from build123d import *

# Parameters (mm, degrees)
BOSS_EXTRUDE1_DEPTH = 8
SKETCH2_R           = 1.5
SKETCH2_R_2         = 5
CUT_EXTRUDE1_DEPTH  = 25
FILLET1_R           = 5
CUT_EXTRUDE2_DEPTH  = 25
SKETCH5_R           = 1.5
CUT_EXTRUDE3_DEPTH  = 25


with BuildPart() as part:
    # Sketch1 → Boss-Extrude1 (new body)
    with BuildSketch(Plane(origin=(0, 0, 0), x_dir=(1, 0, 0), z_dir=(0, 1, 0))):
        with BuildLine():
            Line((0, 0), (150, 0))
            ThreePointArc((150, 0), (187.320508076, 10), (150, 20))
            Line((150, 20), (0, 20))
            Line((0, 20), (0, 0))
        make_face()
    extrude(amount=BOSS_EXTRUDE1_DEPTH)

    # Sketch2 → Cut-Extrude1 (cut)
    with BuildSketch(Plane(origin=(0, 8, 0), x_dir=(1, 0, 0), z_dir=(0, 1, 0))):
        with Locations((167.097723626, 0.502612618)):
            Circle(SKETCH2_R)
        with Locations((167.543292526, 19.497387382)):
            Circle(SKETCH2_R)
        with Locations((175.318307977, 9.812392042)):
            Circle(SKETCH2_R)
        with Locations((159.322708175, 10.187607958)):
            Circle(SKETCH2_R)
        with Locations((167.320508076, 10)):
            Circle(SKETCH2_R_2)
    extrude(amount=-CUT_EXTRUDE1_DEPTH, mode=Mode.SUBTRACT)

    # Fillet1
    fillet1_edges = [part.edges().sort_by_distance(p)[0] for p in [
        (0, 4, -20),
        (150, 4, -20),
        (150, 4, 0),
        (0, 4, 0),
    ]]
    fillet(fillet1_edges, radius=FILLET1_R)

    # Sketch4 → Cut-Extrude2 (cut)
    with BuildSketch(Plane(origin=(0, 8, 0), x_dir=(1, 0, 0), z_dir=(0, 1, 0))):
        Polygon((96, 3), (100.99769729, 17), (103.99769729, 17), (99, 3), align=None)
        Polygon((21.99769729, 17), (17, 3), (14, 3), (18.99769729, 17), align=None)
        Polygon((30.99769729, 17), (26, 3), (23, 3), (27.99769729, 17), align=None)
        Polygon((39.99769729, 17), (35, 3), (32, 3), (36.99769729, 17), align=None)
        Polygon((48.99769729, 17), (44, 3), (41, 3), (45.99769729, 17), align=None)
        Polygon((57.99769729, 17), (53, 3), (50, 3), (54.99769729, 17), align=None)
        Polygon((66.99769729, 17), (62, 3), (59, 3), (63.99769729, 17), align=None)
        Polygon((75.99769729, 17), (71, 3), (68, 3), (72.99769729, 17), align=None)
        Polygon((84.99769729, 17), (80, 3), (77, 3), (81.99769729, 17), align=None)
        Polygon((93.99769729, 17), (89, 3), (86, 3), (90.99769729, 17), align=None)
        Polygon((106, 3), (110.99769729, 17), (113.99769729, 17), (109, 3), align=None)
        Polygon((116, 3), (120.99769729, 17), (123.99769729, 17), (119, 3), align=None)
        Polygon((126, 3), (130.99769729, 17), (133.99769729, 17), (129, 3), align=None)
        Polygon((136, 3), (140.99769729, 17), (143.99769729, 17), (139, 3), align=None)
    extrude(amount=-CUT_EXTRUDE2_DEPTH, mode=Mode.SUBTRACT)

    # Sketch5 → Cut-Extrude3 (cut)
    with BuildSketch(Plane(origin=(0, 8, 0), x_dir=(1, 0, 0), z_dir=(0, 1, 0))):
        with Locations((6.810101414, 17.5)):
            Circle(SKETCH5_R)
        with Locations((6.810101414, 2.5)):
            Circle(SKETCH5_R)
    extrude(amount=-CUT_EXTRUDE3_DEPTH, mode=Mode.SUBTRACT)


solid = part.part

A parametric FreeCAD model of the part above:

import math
import FreeCAD as App
import Part
import Sketcher


def edges_at(feature, points):
    """Names of the edges that pass closest to the given points."""
    edges = feature.Shape.Edges
    near = lambda p: min(range(len(edges)), key=lambda i: edges[i].distToShape(Part.Vertex(*p))[0])
    return sorted({f"Edge{near(p) + 1}" for p in points})

doc = App.newDocument("Part")
body = doc.addObject("PartDesign::Body", "Body")

sketch1 = body.newObject("Sketcher::SketchObject", "Sketch")
sketch1.AttachmentSupport = (doc.getObject("XZ_Plane"), [""])
sketch1.MapMode = "FlatFace"
sketch1.addGeometry([
    Part.LineSegment(App.Vector(0, 0, 0), App.Vector(150, 0, 0)),
    Part.ArcOfCircle(Part.Circle(App.Vector(167, -10, 0), App.Vector(0, 0, 1), 20), math.radians(-150), math.radians(150)),
    Part.LineSegment(App.Vector(150, -20, 0), App.Vector(0, -20, 0)),
    Part.LineSegment(App.Vector(0, -20, 0), App.Vector(0, 0, 0)),
], False)
sketch1.addConstraint([
    Sketcher.Constraint("Coincident", 0, 2, 1, 2),
    Sketcher.Constraint("Coincident", 1, 1, 2, 1),
    Sketcher.Constraint("Coincident", 2, 2, 3, 1),
    Sketcher.Constraint("Coincident", 3, 2, 0, 1),
    Sketcher.Constraint("Horizontal", 0),
    Sketcher.Constraint("Horizontal", 2),
    Sketcher.Constraint("Vertical", 3),
    Sketcher.Constraint("Coincident", 3, 2, -1, 1),
    Sketcher.Constraint("Vertical", 0, 2, 1, 1),
    Sketcher.Constraint("Radius", 1, 20.0),
    Sketcher.Constraint("DistanceX", 0, 1, 0, 2, 150.0),
    Sketcher.Constraint("DistanceY", 3, 1, 3, 2, 20.0),
])
pad1 = body.newObject("PartDesign::Pad", "Pad")
pad1.Profile = sketch1
pad1.Length = 8
pad1.Reversed = True

sketch2 = body.newObject("Sketcher::SketchObject", "Sketch001")
sketch2.AttachmentSupport = (doc.getObject("XZ_Plane"), [""])
sketch2.MapMode = "FlatFace"
sketch2.AttachmentOffset = App.Placement(App.Vector(0, 0, -8), App.Rotation())
sketch2.addGeometry([
    Part.Circle(App.Vector(167.1, -0.5, 0), App.Vector(0, 0, 1), 1.5),
    Part.Circle(App.Vector(167.5, -19.5, 0), App.Vector(0, 0, 1), 1.5),
    Part.Circle(App.Vector(175.3, -9.8, 0), App.Vector(0, 0, 1), 1.5),
    Part.Circle(App.Vector(159.3, -10.2, 0), App.Vector(0, 0, 1), 1.5),
    Part.Circle(App.Vector(167.3, -10, 0), App.Vector(0, 0, 1), 5),
], False)
sketch2.addConstraint([
    Sketcher.Constraint("Equal", 0, 1),
    Sketcher.Constraint("Equal", 1, 2),
    Sketcher.Constraint("Equal", 2, 3),
    Sketcher.Constraint("Diameter", 0, 3.0),
    Sketcher.Constraint("Diameter", 4, 10.0),
    Sketcher.Constraint("DistanceY", 4, 3, -1, 1, 10.0),
    Sketcher.Constraint("DistanceX", 3, 3, 2, 3, 15.9956),
    Sketcher.Constraint("DistanceX", 4, 3, 2, 3, 7.9978),
    Sketcher.Constraint("DistanceX", -1, 1, 3, 3, 159.322708),
    Sketcher.Constraint("DistanceX", 0, 3, 1, 3, 0.445569),
    Sketcher.Constraint("DistanceY", 2, 3, 0, 3, 9.309779),
    Sketcher.Constraint("DistanceY", 1, 3, 3, 3, 9.309779),
    Sketcher.Constraint("DistanceX", -1, 1, 0, 3, 167.097724),
    Sketcher.Constraint("DistanceY", 0, 3, -1, 1, 0.502613),
    Sketcher.Constraint("DistanceY", 1, 3, -1, 1, 19.497387),
])
pocket1 = body.newObject("PartDesign::Pocket", "Pocket")
pocket1.Profile = sketch2
pocket1.Length = 25
pocket1.Reversed = True
doc.recompute()

fillet = body.newObject("PartDesign::Fillet", "Fillet")
fillet.Base = (pocket1, edges_at(pocket1, [
    (0, 4, -20),
    (150, 4, -20),
    (150, 4, 0),
    (0, 4, 0),
]))
fillet.Radius = 5

sketch3 = body.newObject("Sketcher::SketchObject", "Sketch002")
sketch3.AttachmentSupport = (doc.getObject("XZ_Plane"), [""])
sketch3.MapMode = "FlatFace"
sketch3.AttachmentOffset = App.Placement(App.Vector(0, 0, -8), App.Rotation())
sketch3.addGeometry([
    Part.LineSegment(App.Vector(101, -17, 0), App.Vector(96, -3, 0)),
    Part.LineSegment(App.Vector(96, -3, 0), App.Vector(99, -3, 0)),
    Part.LineSegment(App.Vector(99, -3, 0), App.Vector(104, -17, 0)),
    Part.LineSegment(App.Vector(104, -17, 0), App.Vector(101, -17, 0)),
    Part.LineSegment(App.Vector(17, -3, 0), App.Vector(22, -17, 0)),
    Part.LineSegment(App.Vector(22, -17, 0), App.Vector(19, -17, 0)),
    Part.LineSegment(App.Vector(19, -17, 0), App.Vector(14, -3, 0)),
    Part.LineSegment(App.Vector(14, -3, 0), App.Vector(17, -3, 0)),
    Part.LineSegment(App.Vector(26, -3, 0), App.Vector(31, -17, 0)),
    Part.LineSegment(App.Vector(31, -17, 0), App.Vector(28, -17, 0)),
    Part.LineSegment(App.Vector(28, -17, 0), App.Vector(23, -3, 0)),
    Part.LineSegment(App.Vector(23, -3, 0), App.Vector(26, -3, 0)),
    Part.LineSegment(App.Vector(35, -3, 0), App.Vector(40, -17, 0)),
    Part.LineSegment(App.Vector(40, -17, 0), App.Vector(37, -17, 0)),
    Part.LineSegment(App.Vector(37, -17, 0), App.Vector(32, -3, 0)),
    Part.LineSegment(App.Vector(32, -3, 0), App.Vector(35, -3, 0)),
    Part.LineSegment(App.Vector(44, -3, 0), App.Vector(49, -17, 0)),
    Part.LineSegment(App.Vector(49, -17, 0), App.Vector(46, -17, 0)),
    Part.LineSegment(App.Vector(46, -17, 0), App.Vector(41, -3, 0)),
    Part.LineSegment(App.Vector(41, -3, 0), App.Vector(44, -3, 0)),
    Part.LineSegment(App.Vector(53, -3, 0), App.Vector(58, -17, 0)),
    Part.LineSegment(App.Vector(58, -17, 0), App.Vector(55, -17, 0)),
    Part.LineSegment(App.Vector(55, -17, 0), App.Vector(50, -3, 0)),
    Part.LineSegment(App.Vector(50, -3, 0), App.Vector(53, -3, 0)),
    Part.LineSegment(App.Vector(62, -3, 0), App.Vector(67, -17, 0)),
    Part.LineSegment(App.Vector(67, -17, 0), App.Vector(64, -17, 0)),
    Part.LineSegment(App.Vector(64, -17, 0), App.Vector(59, -3, 0)),
    Part.LineSegment(App.Vector(59, -3, 0), App.Vector(62, -3, 0)),
    Part.LineSegment(App.Vector(71, -3, 0), App.Vector(76, -17, 0)),
    Part.LineSegment(App.Vector(76, -17, 0), App.Vector(73, -17, 0)),
    Part.LineSegment(App.Vector(73, -17, 0), App.Vector(68, -3, 0)),
    Part.LineSegment(App.Vector(68, -3, 0), App.Vector(71, -3, 0)),
    Part.LineSegment(App.Vector(80, -3, 0), App.Vector(85, -17, 0)),
    Part.LineSegment(App.Vector(85, -17, 0), App.Vector(82, -17, 0)),
    Part.LineSegment(App.Vector(82, -17, 0), App.Vector(77, -3, 0)),
    Part.LineSegment(App.Vector(77, -3, 0), App.Vector(80, -3, 0)),
    Part.LineSegment(App.Vector(89, -3, 0), App.Vector(94, -17, 0)),
    Part.LineSegment(App.Vector(94, -17, 0), App.Vector(91, -17, 0)),
    Part.LineSegment(App.Vector(91, -17, 0), App.Vector(86, -3, 0)),
    Part.LineSegment(App.Vector(86, -3, 0), App.Vector(89, -3, 0)),
    Part.LineSegment(App.Vector(111, -17, 0), App.Vector(106, -3, 0)),
    Part.LineSegment(App.Vector(106, -3, 0), App.Vector(109, -3, 0)),
    Part.LineSegment(App.Vector(109, -3, 0), App.Vector(114, -17, 0)),
    Part.LineSegment(App.Vector(114, -17, 0), App.Vector(111, -17, 0)),
    Part.LineSegment(App.Vector(121, -17, 0), App.Vector(116, -3, 0)),
    Part.LineSegment(App.Vector(116, -3, 0), App.Vector(119, -3, 0)),
    Part.LineSegment(App.Vector(119, -3, 0), App.Vector(124, -17, 0)),
    Part.LineSegment(App.Vector(124, -17, 0), App.Vector(121, -17, 0)),
    Part.LineSegment(App.Vector(131, -17, 0), App.Vector(126, -3, 0)),
    Part.LineSegment(App.Vector(126, -3, 0), App.Vector(129, -3, 0)),
    Part.LineSegment(App.Vector(129, -3, 0), App.Vector(134, -17, 0)),
    Part.LineSegment(App.Vector(134, -17, 0), App.Vector(131, -17, 0)),
    Part.LineSegment(App.Vector(141, -17, 0), App.Vector(136, -3, 0)),
    Part.LineSegment(App.Vector(136, -3, 0), App.Vector(139, -3, 0)),
    Part.LineSegment(App.Vector(139, -3, 0), App.Vector(144, -17, 0)),
    Part.LineSegment(App.Vector(144, -17, 0), App.Vector(141, -17, 0)),
], False)
sketch3.addConstraint([
    Sketcher.Constraint("Coincident", 0, 2, 1, 1),
    Sketcher.Constraint("Coincident", 1, 2, 2, 1),
    Sketcher.Constraint("Coincident", 2, 2, 3, 1),
    Sketcher.Constraint("Coincident", 3, 2, 0, 1),
    Sketcher.Constraint("Coincident", 4, 2, 5, 1),
    Sketcher.Constraint("Coincident", 5, 2, 6, 1),
    Sketcher.Constraint("Coincident", 6, 2, 7, 1),
    Sketcher.Constraint("Coincident", 7, 2, 4, 1),
    Sketcher.Constraint("Coincident", 8, 2, 9, 1),
    Sketcher.Constraint("Coincident", 9, 2, 10, 1),
    Sketcher.Constraint("Coincident", 10, 2, 11, 1),
    Sketcher.Constraint("Coincident", 11, 2, 8, 1),
    Sketcher.Constraint("Coincident", 12, 2, 13, 1),
    Sketcher.Constraint("Coincident", 13, 2, 14, 1),
    Sketcher.Constraint("Coincident", 14, 2, 15, 1),
    Sketcher.Constraint("Coincident", 15, 2, 12, 1),
    Sketcher.Constraint("Coincident", 16, 2, 17, 1),
    Sketcher.Constraint("Coincident", 17, 2, 18, 1),
    Sketcher.Constraint("Coincident", 18, 2, 19, 1),
    Sketcher.Constraint("Coincident", 19, 2, 16, 1),
    Sketcher.Constraint("Coincident", 20, 2, 21, 1),
    Sketcher.Constraint("Coincident", 21, 2, 22, 1),
    Sketcher.Constraint("Coincident", 22, 2, 23, 1),
    Sketcher.Constraint("Coincident", 23, 2, 20, 1),
    Sketcher.Constraint("Coincident", 24, 2, 25, 1),
    Sketcher.Constraint("Coincident", 25, 2, 26, 1),
    Sketcher.Constraint("Coincident", 26, 2, 27, 1),
    Sketcher.Constraint("Coincident", 27, 2, 24, 1),
    Sketcher.Constraint("Coincident", 28, 2, 29, 1),
    Sketcher.Constraint("Coincident", 29, 2, 30, 1),
    Sketcher.Constraint("Coincident", 30, 2, 31, 1),
    Sketcher.Constraint("Coincident", 31, 2, 28, 1),
    Sketcher.Constraint("Coincident", 32, 2, 33, 1),
    Sketcher.Constraint("Coincident", 33, 2, 34, 1),
    Sketcher.Constraint("Coincident", 34, 2, 35, 1),
    Sketcher.Constraint("Coincident", 35, 2, 32, 1),
    Sketcher.Constraint("Coincident", 36, 2, 37, 1),
    Sketcher.Constraint("Coincident", 37, 2, 38, 1),
    Sketcher.Constraint("Coincident", 38, 2, 39, 1),
    Sketcher.Constraint("Coincident", 39, 2, 36, 1),
    Sketcher.Constraint("Coincident", 40, 2, 41, 1),
    Sketcher.Constraint("Coincident", 41, 2, 42, 1),
    Sketcher.Constraint("Coincident", 42, 2, 43, 1),
    Sketcher.Constraint("Coincident", 43, 2, 40, 1),
    Sketcher.Constraint("Coincident", 44, 2, 45, 1),
    Sketcher.Constraint("Coincident", 45, 2, 46, 1),
    Sketcher.Constraint("Coincident", 46, 2, 47, 1),
    Sketcher.Constraint("Coincident", 47, 2, 44, 1),
    Sketcher.Constraint("Coincident", 48, 2, 49, 1),
    Sketcher.Constraint("Coincident", 49, 2, 50, 1),
    Sketcher.Constraint("Coincident", 50, 2, 51, 1),
    Sketcher.Constraint("Coincident", 51, 2, 48, 1),
    Sketcher.Constraint("Coincident", 52, 2, 53, 1),
    Sketcher.Constraint("Coincident", 53, 2, 54, 1),
    Sketcher.Constraint("Coincident", 54, 2, 55, 1),
    Sketcher.Constraint("Coincident", 55, 2, 52, 1),
    Sketcher.Constraint("Horizontal", 1),
    Sketcher.Constraint("Horizontal", 3),
    Sketcher.Constraint("Horizontal", 5),
    Sketcher.Constraint("Horizontal", 7),
    Sketcher.Constraint("Horizontal", 9),
    Sketcher.Constraint("Horizontal", 11),
    Sketcher.Constraint("Horizontal", 13),
    Sketcher.Constraint("Horizontal", 15),
    Sketcher.Constraint("Horizontal", 17),
    Sketcher.Constraint("Horizontal", 19),
    Sketcher.Constraint("Horizontal", 21),
    Sketcher.Constraint("Horizontal", 23),
    Sketcher.Constraint("Horizontal", 25),
    Sketcher.Constraint("Horizontal", 27),
    Sketcher.Constraint("Horizontal", 29),
    Sketcher.Constraint("Horizontal", 31),
    Sketcher.Constraint("Horizontal", 33),
    Sketcher.Constraint("Horizontal", 35),
    Sketcher.Constraint("Horizontal", 37),
    Sketcher.Constraint("Horizontal", 39),
    Sketcher.Constraint("Horizontal", 41),
    Sketcher.Constraint("Horizontal", 43),
    Sketcher.Constraint("Horizontal", 45),
    Sketcher.Constraint("Horizontal", 47),
    Sketcher.Constraint("Horizontal", 49),
    Sketcher.Constraint("Horizontal", 51),
    Sketcher.Constraint("Horizontal", 53),
    Sketcher.Constraint("Horizontal", 55),
    Sketcher.Constraint("Parallel", 0, 2),
    Sketcher.Constraint("Parallel", 2, 4),
    Sketcher.Constraint("Parallel", 4, 6),
    Sketcher.Constraint("Parallel", 6, 8),
    Sketcher.Constraint("Parallel", 8, 10),
    Sketcher.Constraint("Parallel", 10, 12),
    Sketcher.Constraint("Parallel", 12, 14),
    Sketcher.Constraint("Parallel", 14, 16),
    Sketcher.Constraint("Parallel", 16, 18),
    Sketcher.Constraint("Parallel", 18, 20),
    Sketcher.Constraint("Parallel", 20, 22),
    Sketcher.Constraint("Parallel", 22, 24),
    Sketcher.Constraint("Parallel", 24, 26),
    Sketcher.Constraint("Parallel", 26, 28),
    Sketcher.Constraint("Parallel", 28, 30),
    Sketcher.Constraint("Parallel", 30, 32),
    Sketcher.Constraint("Parallel", 32, 34),
    Sketcher.Constraint("Parallel", 34, 36),
    Sketcher.Constraint("Parallel", 36, 38),
    Sketcher.Constraint("Parallel", 38, 40),
    Sketcher.Constraint("Parallel", 40, 42),
    Sketcher.Constraint("Parallel", 42, 44),
    Sketcher.Constraint("Parallel", 44, 46),
    Sketcher.Constraint("Parallel", 46, 48),
    Sketcher.Constraint("Parallel", 48, 50),
    Sketcher.Constraint("Parallel", 50, 52),
    Sketcher.Constraint("Parallel", 52, 54),
    Sketcher.Constraint("Horizontal", 3, 2, 4, 2),
    Sketcher.Constraint("Horizontal", 1, 2, 6, 2),
    Sketcher.Constraint("Horizontal", 5, 2, 8, 2),
    Sketcher.Constraint("Horizontal", 7, 2, 10, 2),
    Sketcher.Constraint("Horizontal", 9, 2, 12, 2),
    Sketcher.Constraint("Horizontal", 11, 2, 14, 2),
    Sketcher.Constraint("Horizontal", 13, 2, 16, 2),
    Sketcher.Constraint("Horizontal", 15, 2, 18, 2),
    Sketcher.Constraint("Horizontal", 17, 2, 20, 2),
    Sketcher.Constraint("Horizontal", 19, 2, 22, 2),
    Sketcher.Constraint("Horizontal", 21, 2, 24, 2),
    Sketcher.Constraint("Horizontal", 23, 2, 26, 2),
    Sketcher.Constraint("Horizontal", 25, 2, 28, 2),
    Sketcher.Constraint("Horizontal", 27, 2, 30, 2),
    Sketcher.Constraint("Horizontal", 29, 2, 32, 2),
    Sketcher.Constraint("Horizontal", 31, 2, 34, 2),
    Sketcher.Constraint("Horizontal", 33, 2, 36, 2),
    Sketcher.Constraint("Horizontal", 35, 2, 38, 2),
    Sketcher.Constraint("Horizontal", 39, 2, 40, 2),
    Sketcher.Constraint("Horizontal", 37, 2, 42, 2),
    Sketcher.Constraint("Horizontal", 41, 2, 44, 2),
    Sketcher.Constraint("Horizontal", 43, 2, 46, 2),
    Sketcher.Constraint("Horizontal", 45, 2, 48, 2),
    Sketcher.Constraint("Horizontal", 47, 2, 50, 2),
    Sketcher.Constraint("Horizontal", 49, 2, 52, 2),
    Sketcher.Constraint("Horizontal", 51, 2, 54, 2),
    Sketcher.Constraint("Equal", 3, 5),
    Sketcher.Constraint("Equal", 7, 9),
    Sketcher.Constraint("Equal", 11, 13),
    Sketcher.Constraint("Equal", 15, 17),
    Sketcher.Constraint("Equal", 19, 21),
    Sketcher.Constraint("Equal", 23, 25),
    Sketcher.Constraint("Equal", 27, 29),
    Sketcher.Constraint("Equal", 31, 33),
    Sketcher.Constraint("Equal", 35, 37),
    Sketcher.Constraint("Equal", 39, 41),
    Sketcher.Constraint("Equal", 43, 45),
    Sketcher.Constraint("Equal", 47, 49),
    Sketcher.Constraint("Equal", 51, 53),
    Sketcher.Constraint("DistanceX", 1, 1, 1, 2, 3.0),
    Sketcher.Constraint("DistanceX", -1, 1, 0, 2, 96.0),
    Sketcher.Constraint("DistanceY", 0, 2, -1, 1, 3.0),
    Sketcher.Constraint("DistanceY", 2, 2, -1, 1, 17.0),
    Sketcher.Constraint("DistanceX", -1, 1, 6, 2, 14.0),
    Sketcher.Constraint("DistanceX", -1, 1, 10, 2, 23.0),
    Sketcher.Constraint("DistanceX", -1, 1, 14, 2, 32.0),
    Sketcher.Constraint("DistanceX", -1, 1, 18, 2, 41.0),
    Sketcher.Constraint("DistanceX", -1, 1, 22, 2, 50.0),
    Sketcher.Constraint("DistanceX", -1, 1, 26, 2, 59.0),
    Sketcher.Constraint("DistanceX", -1, 1, 30, 2, 68.0),
    Sketcher.Constraint("DistanceX", -1, 1, 34, 2, 77.0),
    Sketcher.Constraint("DistanceX", -1, 1, 38, 2, 86.0),
    Sketcher.Constraint("DistanceX", -1, 1, 40, 2, 106.0),
    Sketcher.Constraint("DistanceX", -1, 1, 44, 2, 116.0),
    Sketcher.Constraint("DistanceX", -1, 1, 48, 2, 126.0),
    Sketcher.Constraint("DistanceX", -1, 1, 52, 2, 136.0),
    Sketcher.Constraint("Distance", 0, 14.865294),
])
pocket2 = body.newObject("PartDesign::Pocket", "Pocket001")
pocket2.Profile = sketch3
pocket2.Length = 25
pocket2.Reversed = True

sketch4 = body.newObject("Sketcher::SketchObject", "Sketch003")
sketch4.AttachmentSupport = (doc.getObject("XZ_Plane"), [""])
sketch4.MapMode = "FlatFace"
sketch4.AttachmentOffset = App.Placement(App.Vector(0, 0, -8), App.Rotation())
sketch4.addGeometry([
    Part.Circle(App.Vector(6.8, -17.5, 0), App.Vector(0, 0, 1), 1.5),
    Part.Circle(App.Vector(6.8, -2.5, 0), App.Vector(0, 0, 1), 1.5),
], False)
sketch4.addConstraint([
    Sketcher.Constraint("Equal", 0, 1),
    Sketcher.Constraint("Vertical", 0, 3, 1, 3),
    Sketcher.Constraint("Diameter", 0, 3.0),
    Sketcher.Constraint("DistanceY", 0, 3, 1, 3, 15.0),
    Sketcher.Constraint("DistanceY", 0, 3, -1, 1, 17.5),
    Sketcher.Constraint("DistanceX", -1, 1, 0, 3, 6.810101),
])
pocket3 = body.newObject("PartDesign::Pocket", "Pocket002")
pocket3.Profile = sketch4
pocket3.Length = 25
pocket3.Reversed = True

doc.recompute()
